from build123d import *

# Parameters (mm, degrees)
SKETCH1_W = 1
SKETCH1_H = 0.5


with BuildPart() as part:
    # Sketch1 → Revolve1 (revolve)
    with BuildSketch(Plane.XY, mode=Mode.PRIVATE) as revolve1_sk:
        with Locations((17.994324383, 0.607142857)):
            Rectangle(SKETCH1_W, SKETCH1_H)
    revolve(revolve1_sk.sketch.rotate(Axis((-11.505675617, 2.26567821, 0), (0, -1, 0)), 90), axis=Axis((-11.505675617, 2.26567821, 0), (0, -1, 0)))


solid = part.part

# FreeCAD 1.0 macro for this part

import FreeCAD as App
import Part
import Sketcher
from FreeCAD import Vector

doc = App.newDocument("Part")
body = doc.addObject("PartDesign::Body", "Body")

sketch1 = doc.addObject("Sketcher::SketchObject", "Sketch")
body.addObject(sketch1)
sketch1.AttachmentSupport = (doc.XY_Plane, [""])
sketch1.MapMode = "FlatFace"
sketch1.addGeometry([
    Part.LineSegment(Vector(17.5, 0.9, 0), Vector(17.5, 0.4, 0)),
    Part.LineSegment(Vector(17.5, 0.4, 0), Vector(18.5, 0.4, 0)),
    Part.LineSegment(Vector(18.5, 0.4, 0), Vector(18.5, 0.9, 0)),
    Part.LineSegment(Vector(18.5, 0.9, 0), Vector(17.5, 0.9, 0)),
], False)
sketch1.addGeometry(Part.LineSegment(Vector(-11.5, 0.9, 0), Vector(-11.5, 0.4, 0)), True)
sketch1.addConstraint([
    Sketcher.Constraint("Coincident", 0, 2, 1, 1),
    Sketcher.Constraint("Coincident", 1, 2, 2, 1),
    Sketcher.Constraint("Coincident", 2, 2, 3, 1),
    Sketcher.Constraint("Coincident", 3, 2, 0, 1),
    Sketcher.Constraint("Vertical", 0),
    Sketcher.Constraint("Horizontal", 1),
    Sketcher.Constraint("Vertical", 2),
    Sketcher.Constraint("Horizontal", 3),
    Sketcher.Constraint("Vertical", 4),
    Sketcher.Constraint("Horizontal", 3, 2, 4, 1),
    Sketcher.Constraint("Horizontal", 1, 2, 4, 2),
    Sketcher.Constraint("DistanceX", 1, 1, 1, 2, 1.0),
    Sketcher.Constraint("DistanceY", 0, 2, 0, 1, 0.5),
    Sketcher.Constraint("DistanceX", 4, 1, 3, 2, 29.0),
    Sketcher.Constraint("DistanceX", -1, 1, 0, 2, 17.494324),
    Sketcher.Constraint("DistanceY", -1, 1, 0, 2, 0.357143),
])
revolution = doc.addObject("PartDesign::Revolution", "Revolution")
body.addObject(revolution)
revolution.Profile = sketch1
revolution.ReferenceAxis = (sketch1, ["Axis0"])
revolution.Angle = 360

doc.recompute()
